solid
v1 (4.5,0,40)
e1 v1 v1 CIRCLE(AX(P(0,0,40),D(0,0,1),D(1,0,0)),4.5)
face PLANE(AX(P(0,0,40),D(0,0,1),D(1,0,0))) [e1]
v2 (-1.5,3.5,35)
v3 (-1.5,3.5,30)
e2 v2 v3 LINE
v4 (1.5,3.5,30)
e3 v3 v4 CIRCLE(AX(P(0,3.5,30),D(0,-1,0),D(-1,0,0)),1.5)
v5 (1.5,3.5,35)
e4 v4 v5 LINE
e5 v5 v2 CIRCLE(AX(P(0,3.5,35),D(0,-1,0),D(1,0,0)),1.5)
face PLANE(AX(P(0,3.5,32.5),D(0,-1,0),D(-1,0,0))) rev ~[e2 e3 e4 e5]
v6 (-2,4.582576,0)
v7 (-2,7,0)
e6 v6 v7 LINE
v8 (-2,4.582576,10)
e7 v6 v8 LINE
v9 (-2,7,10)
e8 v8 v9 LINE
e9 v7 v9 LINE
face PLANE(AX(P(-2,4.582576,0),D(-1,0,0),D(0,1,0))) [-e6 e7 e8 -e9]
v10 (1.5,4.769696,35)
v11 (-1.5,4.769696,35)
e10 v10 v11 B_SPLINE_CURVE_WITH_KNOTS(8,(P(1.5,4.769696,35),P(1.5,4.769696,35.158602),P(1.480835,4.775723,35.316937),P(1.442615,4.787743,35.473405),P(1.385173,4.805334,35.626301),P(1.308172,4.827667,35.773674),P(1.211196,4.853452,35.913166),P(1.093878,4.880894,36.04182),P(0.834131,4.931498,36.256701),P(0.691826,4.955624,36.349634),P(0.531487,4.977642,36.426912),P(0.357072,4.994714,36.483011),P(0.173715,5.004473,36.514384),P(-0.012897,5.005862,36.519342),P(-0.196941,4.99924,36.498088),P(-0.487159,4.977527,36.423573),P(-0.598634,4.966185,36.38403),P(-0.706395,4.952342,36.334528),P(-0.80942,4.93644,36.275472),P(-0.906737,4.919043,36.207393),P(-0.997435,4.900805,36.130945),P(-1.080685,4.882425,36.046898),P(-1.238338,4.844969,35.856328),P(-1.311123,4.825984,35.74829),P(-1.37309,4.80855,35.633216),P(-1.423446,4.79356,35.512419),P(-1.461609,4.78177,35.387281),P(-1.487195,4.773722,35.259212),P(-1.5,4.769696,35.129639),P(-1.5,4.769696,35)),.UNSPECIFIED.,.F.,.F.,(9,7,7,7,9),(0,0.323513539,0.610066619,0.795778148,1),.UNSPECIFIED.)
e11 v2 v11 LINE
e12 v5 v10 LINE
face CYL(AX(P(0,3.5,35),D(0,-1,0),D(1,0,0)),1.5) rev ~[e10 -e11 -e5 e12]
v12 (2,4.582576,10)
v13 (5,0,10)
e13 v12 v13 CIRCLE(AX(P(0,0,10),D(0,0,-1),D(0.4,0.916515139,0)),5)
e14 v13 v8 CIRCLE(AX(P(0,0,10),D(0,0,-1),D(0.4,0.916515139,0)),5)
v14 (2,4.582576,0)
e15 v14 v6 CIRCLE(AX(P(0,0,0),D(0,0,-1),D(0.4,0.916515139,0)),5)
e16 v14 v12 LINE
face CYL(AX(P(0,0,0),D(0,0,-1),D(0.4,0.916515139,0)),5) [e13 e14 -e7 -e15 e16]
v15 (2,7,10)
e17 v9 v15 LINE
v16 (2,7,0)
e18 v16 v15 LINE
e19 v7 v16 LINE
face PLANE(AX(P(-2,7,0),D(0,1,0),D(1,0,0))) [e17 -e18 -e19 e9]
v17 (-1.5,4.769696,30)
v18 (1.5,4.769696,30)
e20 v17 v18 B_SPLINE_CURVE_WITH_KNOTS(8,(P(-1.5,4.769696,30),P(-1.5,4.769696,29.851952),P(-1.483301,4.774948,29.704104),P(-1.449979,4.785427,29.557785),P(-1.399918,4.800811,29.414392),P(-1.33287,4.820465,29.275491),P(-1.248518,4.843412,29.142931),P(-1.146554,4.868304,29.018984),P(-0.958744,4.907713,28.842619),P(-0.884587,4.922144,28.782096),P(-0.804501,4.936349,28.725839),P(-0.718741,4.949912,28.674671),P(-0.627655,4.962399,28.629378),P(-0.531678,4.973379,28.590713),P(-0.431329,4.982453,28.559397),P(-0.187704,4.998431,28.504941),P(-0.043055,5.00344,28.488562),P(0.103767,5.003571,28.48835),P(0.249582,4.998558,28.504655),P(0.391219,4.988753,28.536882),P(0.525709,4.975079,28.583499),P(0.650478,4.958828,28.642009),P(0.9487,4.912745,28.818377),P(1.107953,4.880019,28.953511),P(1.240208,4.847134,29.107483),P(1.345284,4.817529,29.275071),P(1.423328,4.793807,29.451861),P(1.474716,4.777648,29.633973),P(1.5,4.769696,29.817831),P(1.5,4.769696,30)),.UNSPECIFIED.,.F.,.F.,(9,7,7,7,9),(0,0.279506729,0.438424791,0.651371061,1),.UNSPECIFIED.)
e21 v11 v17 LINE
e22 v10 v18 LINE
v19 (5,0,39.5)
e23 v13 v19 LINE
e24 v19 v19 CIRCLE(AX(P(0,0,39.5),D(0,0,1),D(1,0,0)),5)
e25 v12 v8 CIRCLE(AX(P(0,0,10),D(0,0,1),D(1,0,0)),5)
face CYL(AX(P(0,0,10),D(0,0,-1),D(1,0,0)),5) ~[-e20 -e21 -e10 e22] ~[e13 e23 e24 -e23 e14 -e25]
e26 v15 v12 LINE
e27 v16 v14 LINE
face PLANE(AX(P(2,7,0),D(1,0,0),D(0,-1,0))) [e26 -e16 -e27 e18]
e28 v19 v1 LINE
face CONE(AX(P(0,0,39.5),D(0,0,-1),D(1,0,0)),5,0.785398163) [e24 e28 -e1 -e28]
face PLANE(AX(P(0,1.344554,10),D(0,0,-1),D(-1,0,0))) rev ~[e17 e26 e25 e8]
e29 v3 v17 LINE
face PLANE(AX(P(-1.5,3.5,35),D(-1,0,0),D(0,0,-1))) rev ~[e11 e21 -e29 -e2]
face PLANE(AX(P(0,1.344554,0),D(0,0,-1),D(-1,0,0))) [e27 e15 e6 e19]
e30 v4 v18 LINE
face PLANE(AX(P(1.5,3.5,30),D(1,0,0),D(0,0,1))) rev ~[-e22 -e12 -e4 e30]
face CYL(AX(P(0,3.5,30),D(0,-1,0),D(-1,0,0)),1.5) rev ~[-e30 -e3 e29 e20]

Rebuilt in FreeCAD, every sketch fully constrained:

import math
import FreeCAD as App
import Part
import Sketcher
from FreeCAD import Vector
Q = App.Units.Quantity


def edges_at(feature, points):
    """Names of the edges that pass closest to the given points."""
    edges = feature.Shape.Edges
    near = lambda p: min(range(len(edges)), key=lambda i: edges[i].distToShape(Part.Vertex(*p))[0])
    return sorted({f"Edge{near(p) + 1}" for p in points})

doc = App.newDocument("Part")
body = doc.addObject("PartDesign::Body", "Body")

sketch1 = body.newObject("Sketcher::SketchObject", "Sketch")
sketch1.AttachmentSupport = (doc.getObject("XY_Plane"), [""])
sketch1.MapMode = "FlatFace"
sketch1.addGeometry([
    Part.LineSegment(Vector(2, 7, 0), Vector(-2, 7, 0)),
    Part.LineSegment(Vector(-2, 7, 0), Vector(-2, 4.582576, 0)),
    Part.ArcOfCircle(Part.Circle(Vector(0, 0, 0), Vector(0, 0, 1), 5), math.radians(113.578178), math.radians(426.421822)),
    Part.LineSegment(Vector(2, 4.582576, 0), Vector(2, 7, 0)),
], False)
sketch1.addConstraint([
    Sketcher.Constraint("Coincident", 0, 2, 1, 1),
    Sketcher.Constraint("Coincident", 1, 2, 2, 1),
    Sketcher.Constraint("Coincident", 2, 2, 3, 1),
    Sketcher.Constraint("Coincident", 3, 2, 0, 1),
    Sketcher.Constraint("Horizontal", 0),
    Sketcher.Constraint("Vertical", 1),
    Sketcher.Constraint("Vertical", 3),
    Sketcher.Constraint("Coincident", 2, 3, -1, 1),
    Sketcher.Constraint("Horizontal", 1, 2, 2, 2),
    Sketcher.Constraint("Radius", 2, Q("5 mm")),
    Sketcher.Constraint("DistanceX", 0, 2, 0, 1, Q("4 mm")),
    Sketcher.Constraint("DistanceY", -1, 1, 0, 2, Q("7 mm")),
])
pad1 = body.newObject("PartDesign::Pad", "Pad")
pad1.Profile = sketch1
pad1.Length = 10

sketch2 = body.newObject("Sketcher::SketchObject", "Sketch001")
sketch2.AttachmentSupport = (doc.getObject("XY_Plane"), [""])
sketch2.MapMode = "FlatFace"
sketch2.AttachmentOffset = App.Placement(Vector(0, 0, 10), App.Rotation())
sketch2.addGeometry(Part.Circle(Vector(0, 0, 0), Vector(0, 0, 1), 5), False)
sketch2.addConstraint([
    Sketcher.Constraint("Coincident", 0, 3, -1, 1),
    Sketcher.Constraint("Diameter", 0, Q("10 mm")),
])
pad2 = body.newObject("PartDesign::Pad", "Pad001")
pad2.Profile = sketch2
pad2.Length = 30

sketch3 = body.newObject("Sketcher::SketchObject", "Sketch002")
sketch3.AttachmentSupport = (doc.getObject("XZ_Plane"), [""])
sketch3.MapMode = "FlatFace"
sketch3.AttachmentOffset = App.Placement(Vector(0, 0, -3.5), App.Rotation())
sketch3.addGeometry([
    Part.LineSegment(Vector(1.5, 35, 0), Vector(1.5, 30, 0)),
    Part.ArcOfCircle(Part.Circle(Vector(0, 30, 0), Vector(0, 0, 1), 1.5), math.radians(180), math.radians(360)),
    Part.LineSegment(Vector(-1.5, 30, 0), Vector(-1.5, 35, 0)),
    Part.ArcOfCircle(Part.Circle(Vector(0, 35, 0), Vector(0, 0, 1), 1.5), math.radians(0), math.radians(180)),
], False)
sketch3.addConstraint([
    Sketcher.Constraint("Tangent", 0, 2, 1, 2),
    Sketcher.Constraint("Tangent", 1, 1, 2, 1),
    Sketcher.Constraint("Tangent", 2, 2, 3, 2),
    Sketcher.Constraint("Tangent", 3, 1, 0, 1),
    Sketcher.Constraint("Vertical", 0),
    Sketcher.Constraint("Vertical", 2),
    Sketcher.Constraint("PointOnObject", 1, 3, -2),
    Sketcher.Constraint("Radius", 1, Q("1.5 mm")),
    Sketcher.Constraint("DistanceY", 0, 2, 0, 1, Q("5 mm")),
    Sketcher.Constraint("DistanceY", -1, 1, 1, 3, Q("30 mm")),
])
pocket1 = body.newObject("PartDesign::Pocket", "Pocket")
pocket1.Profile = sketch3
pocket1.Type = "ThroughAll"
doc.recompute()

chamfer = body.newObject("PartDesign::Chamfer", "Chamfer")
chamfer.Base = (pocket1, edges_at(pocket1, [(-5, 0, 40)]))
chamfer.Size = 0.5

doc.recompute()
